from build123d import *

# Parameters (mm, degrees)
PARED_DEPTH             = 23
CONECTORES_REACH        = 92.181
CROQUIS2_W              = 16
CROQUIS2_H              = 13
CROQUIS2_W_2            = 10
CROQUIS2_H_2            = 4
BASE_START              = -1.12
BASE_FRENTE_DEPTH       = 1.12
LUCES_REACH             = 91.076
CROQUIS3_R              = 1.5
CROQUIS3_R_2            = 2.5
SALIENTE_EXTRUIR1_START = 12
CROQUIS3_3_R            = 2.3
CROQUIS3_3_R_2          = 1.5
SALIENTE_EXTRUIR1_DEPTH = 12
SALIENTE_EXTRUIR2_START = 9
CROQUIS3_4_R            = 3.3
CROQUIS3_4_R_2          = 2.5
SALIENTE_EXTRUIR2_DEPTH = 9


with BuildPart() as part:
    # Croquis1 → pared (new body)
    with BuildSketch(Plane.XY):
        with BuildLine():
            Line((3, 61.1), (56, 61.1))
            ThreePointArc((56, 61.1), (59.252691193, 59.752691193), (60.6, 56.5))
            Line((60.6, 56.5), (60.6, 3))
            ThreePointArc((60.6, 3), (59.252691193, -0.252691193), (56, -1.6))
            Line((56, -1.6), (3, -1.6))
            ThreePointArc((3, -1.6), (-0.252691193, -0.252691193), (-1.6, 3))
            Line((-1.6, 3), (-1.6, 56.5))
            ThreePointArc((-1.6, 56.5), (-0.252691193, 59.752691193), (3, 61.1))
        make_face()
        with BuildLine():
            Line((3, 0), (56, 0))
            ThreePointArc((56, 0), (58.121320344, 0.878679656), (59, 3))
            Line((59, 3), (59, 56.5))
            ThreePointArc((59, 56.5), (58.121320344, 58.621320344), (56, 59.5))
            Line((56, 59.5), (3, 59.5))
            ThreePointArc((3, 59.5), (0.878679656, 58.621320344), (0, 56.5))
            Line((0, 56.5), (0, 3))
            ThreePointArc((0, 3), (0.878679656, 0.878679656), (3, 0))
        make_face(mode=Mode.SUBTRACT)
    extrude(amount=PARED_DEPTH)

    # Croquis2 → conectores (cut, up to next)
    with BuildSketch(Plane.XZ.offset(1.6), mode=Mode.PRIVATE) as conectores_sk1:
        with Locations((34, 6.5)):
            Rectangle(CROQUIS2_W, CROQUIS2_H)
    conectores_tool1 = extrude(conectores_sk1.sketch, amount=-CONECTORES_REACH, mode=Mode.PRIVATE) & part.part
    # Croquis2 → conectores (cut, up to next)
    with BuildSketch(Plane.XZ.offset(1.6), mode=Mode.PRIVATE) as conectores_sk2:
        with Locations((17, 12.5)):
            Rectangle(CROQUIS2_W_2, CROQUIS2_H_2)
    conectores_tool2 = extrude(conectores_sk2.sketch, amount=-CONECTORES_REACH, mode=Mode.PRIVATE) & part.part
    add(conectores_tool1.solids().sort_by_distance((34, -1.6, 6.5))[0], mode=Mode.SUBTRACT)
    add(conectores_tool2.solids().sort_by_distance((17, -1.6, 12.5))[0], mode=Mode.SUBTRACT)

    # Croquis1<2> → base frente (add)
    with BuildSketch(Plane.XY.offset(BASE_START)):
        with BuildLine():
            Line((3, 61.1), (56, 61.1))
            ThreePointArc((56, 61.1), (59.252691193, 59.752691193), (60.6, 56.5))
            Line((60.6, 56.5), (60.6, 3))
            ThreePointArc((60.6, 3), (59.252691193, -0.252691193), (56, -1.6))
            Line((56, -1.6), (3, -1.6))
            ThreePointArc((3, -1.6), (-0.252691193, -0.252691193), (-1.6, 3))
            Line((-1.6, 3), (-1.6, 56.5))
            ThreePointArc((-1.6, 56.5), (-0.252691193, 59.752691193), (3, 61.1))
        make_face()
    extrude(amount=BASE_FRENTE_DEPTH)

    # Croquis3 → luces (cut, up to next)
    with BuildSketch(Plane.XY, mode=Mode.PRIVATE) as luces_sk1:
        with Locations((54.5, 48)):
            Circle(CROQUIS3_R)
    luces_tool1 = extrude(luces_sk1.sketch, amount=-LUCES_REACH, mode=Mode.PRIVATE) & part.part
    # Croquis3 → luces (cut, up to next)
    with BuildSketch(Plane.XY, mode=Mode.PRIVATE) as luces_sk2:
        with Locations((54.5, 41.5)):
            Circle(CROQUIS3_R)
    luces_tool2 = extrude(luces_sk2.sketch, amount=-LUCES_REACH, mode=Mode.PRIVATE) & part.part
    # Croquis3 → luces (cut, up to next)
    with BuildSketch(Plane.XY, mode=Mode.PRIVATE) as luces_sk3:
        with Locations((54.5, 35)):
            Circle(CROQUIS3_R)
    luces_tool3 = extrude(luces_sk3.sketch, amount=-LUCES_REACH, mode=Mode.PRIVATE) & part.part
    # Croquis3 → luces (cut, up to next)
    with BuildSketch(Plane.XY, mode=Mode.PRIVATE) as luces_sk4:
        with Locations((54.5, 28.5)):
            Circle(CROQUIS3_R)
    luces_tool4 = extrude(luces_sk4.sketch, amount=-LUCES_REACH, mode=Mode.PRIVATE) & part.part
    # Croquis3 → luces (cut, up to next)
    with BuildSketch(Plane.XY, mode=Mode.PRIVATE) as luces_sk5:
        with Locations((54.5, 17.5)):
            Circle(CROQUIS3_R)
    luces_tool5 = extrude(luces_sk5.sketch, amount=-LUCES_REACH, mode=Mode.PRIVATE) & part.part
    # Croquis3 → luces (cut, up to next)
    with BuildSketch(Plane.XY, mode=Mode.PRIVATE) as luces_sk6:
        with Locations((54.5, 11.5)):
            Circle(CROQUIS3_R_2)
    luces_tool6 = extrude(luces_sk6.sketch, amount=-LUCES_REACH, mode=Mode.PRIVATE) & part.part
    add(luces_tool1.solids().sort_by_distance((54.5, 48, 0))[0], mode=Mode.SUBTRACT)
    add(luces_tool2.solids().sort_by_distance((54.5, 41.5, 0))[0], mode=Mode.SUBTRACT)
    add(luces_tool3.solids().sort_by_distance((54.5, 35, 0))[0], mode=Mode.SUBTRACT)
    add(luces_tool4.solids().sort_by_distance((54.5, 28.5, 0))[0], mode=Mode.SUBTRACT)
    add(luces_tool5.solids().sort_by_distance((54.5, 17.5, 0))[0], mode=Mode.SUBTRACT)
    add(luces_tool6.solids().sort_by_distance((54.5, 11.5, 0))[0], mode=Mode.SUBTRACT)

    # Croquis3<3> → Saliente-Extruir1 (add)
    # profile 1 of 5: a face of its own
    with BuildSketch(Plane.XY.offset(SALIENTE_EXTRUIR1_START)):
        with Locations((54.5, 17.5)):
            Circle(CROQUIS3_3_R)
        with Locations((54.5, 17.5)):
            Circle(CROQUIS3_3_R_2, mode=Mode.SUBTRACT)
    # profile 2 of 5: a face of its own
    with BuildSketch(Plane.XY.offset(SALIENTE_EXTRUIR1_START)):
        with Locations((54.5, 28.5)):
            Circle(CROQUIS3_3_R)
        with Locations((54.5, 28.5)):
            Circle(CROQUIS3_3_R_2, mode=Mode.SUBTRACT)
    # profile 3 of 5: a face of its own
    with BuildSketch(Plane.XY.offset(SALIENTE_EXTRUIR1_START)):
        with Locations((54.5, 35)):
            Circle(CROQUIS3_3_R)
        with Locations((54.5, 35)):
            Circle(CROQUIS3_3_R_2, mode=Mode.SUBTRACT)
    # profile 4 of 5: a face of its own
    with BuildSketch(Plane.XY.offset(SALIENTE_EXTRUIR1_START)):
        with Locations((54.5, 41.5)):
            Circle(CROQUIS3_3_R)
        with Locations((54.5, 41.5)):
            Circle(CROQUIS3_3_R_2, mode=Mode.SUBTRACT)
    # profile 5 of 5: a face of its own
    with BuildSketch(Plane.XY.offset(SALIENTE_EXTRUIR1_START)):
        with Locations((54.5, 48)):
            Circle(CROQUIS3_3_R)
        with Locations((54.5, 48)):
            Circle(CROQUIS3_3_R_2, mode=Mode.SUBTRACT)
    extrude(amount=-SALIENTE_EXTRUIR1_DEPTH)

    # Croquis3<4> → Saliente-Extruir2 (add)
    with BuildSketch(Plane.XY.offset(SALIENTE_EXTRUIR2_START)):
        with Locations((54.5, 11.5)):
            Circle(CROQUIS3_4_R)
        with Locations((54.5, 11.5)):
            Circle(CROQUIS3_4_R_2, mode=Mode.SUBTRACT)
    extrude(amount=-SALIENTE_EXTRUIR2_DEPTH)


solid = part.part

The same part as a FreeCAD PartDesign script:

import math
import FreeCAD as App
import Part
import Sketcher

V = App.Vector


def add_polygon(sketch, points):
    """Adds a closed chain of lines whose ends are joined by coincident constraints."""
    first, n = sketch.GeometryCount, len(points)
    for a, b in zip(points, points[1:] + points[:1]):
        sketch.addGeometry(Part.LineSegment(App.Vector(*a, 0), App.Vector(*b, 0)), False)
    for i in range(n):
        sketch.addConstraint(Sketcher.Constraint("Coincident", first + i, 2, first + (i + 1) % n, 1))

doc = App.newDocument("Part")
body = doc.addObject("PartDesign::Body", "Body")

# Sketch on XY plane
sketch1 = body.newObject("Sketcher::SketchObject", "Sketch")
sketch1.AttachmentSupport = (doc.getObject("XY_Plane"), [""])
sketch1.MapMode = "FlatFace"
sketch1.addGeometry(Part.LineSegment(V(56, 61.1, 0), V(3, 61.1, 0)), False)
sketch1.addGeometry(Part.ArcOfCircle(Part.Circle(V(3, 56.5, 0), V(0, 0, 1), 4.6), math.radians(90), math.radians(180)), False)
sketch1.addGeometry(Part.LineSegment(V(-1.6, 56.5, 0), V(-1.6, 3, 0)), False)
sketch1.addGeometry(Part.ArcOfCircle(Part.Circle(V(3, 3, 0), V(0, 0, 1), 4.6), math.radians(-180), math.radians(-90)), False)
sketch1.addGeometry(Part.LineSegment(V(3, -1.6, 0), V(56, -1.6, 0)), False)
sketch1.addGeometry(Part.ArcOfCircle(Part.Circle(V(56, 3, 0), V(0, 0, 1), 4.6), math.radians(-90), math.radians(0)), False)
sketch1.addGeometry(Part.LineSegment(V(60.6, 3, 0), V(60.6, 56.5, 0)), False)
sketch1.addGeometry(Part.ArcOfCircle(Part.Circle(V(56, 56.5, 0), V(0, 0, 1), 4.6), math.radians(0), math.radians(90)), False)
sketch1.addGeometry(Part.ArcOfCircle(Part.Circle(V(3, 3, 0), V(0, 0, 1), 3), math.radians(180), math.radians(270)), False)
sketch1.addGeometry(Part.LineSegment(V(0, 3, 0), V(0, 56.5, 0)), False)
sketch1.addGeometry(Part.ArcOfCircle(Part.Circle(V(3, 56.5, 0), V(0, 0, 1), 3), math.radians(90), math.radians(180)), False)
sketch1.addGeometry(Part.LineSegment(V(3, 59.5, 0), V(56, 59.5, 0)), False)
sketch1.addGeometry(Part.ArcOfCircle(Part.Circle(V(56, 56.5, 0), V(0, 0, 1), 3), math.radians(0), math.radians(90)), False)
sketch1.addGeometry(Part.LineSegment(V(59, 56.5, 0), V(59, 3, 0)), False)
sketch1.addGeometry(Part.ArcOfCircle(Part.Circle(V(56, 3, 0), V(0, 0, 1), 3), math.radians(-90), math.radians(0)), False)
sketch1.addGeometry(Part.LineSegment(V(56, 0, 0), V(3, 0, 0)), False)
sketch1.addConstraint(Sketcher.Constraint("Tangent", 0, 2, 1, 1))
sketch1.addConstraint(Sketcher.Constraint("Tangent", 1, 2, 2, 1))
sketch1.addConstraint(Sketcher.Constraint("Tangent", 2, 2, 3, 1))
sketch1.addConstraint(Sketcher.Constraint("Tangent", 3, 2, 4, 1))
sketch1.addConstraint(Sketcher.Constraint("Tangent", 4, 2, 5, 1))
sketch1.addConstraint(Sketcher.Constraint("Tangent", 5, 2, 6, 1))
sketch1.addConstraint(Sketcher.Constraint("Tangent", 6, 2, 7, 1))
sketch1.addConstraint(Sketcher.Constraint("Tangent", 7, 2, 0, 1))
sketch1.addConstraint(Sketcher.Constraint("Tangent", 8, 1, 9, 1))
sketch1.addConstraint(Sketcher.Constraint("Tangent", 9, 2, 10, 2))
sketch1.addConstraint(Sketcher.Constraint("Tangent", 10, 1, 11, 1))
sketch1.addConstraint(Sketcher.Constraint("Tangent", 11, 2, 12, 2))
sketch1.addConstraint(Sketcher.Constraint("Tangent", 12, 1, 13, 1))
sketch1.addConstraint(Sketcher.Constraint("Tangent", 13, 2, 14, 2))
sketch1.addConstraint(Sketcher.Constraint("Tangent", 14, 1, 15, 1))
sketch1.addConstraint(Sketcher.Constraint("Tangent", 15, 2, 8, 2))
sketch1.addConstraint(Sketcher.Constraint("Horizontal", 0))
sketch1.addConstraint(Sketcher.Constraint("Vertical", 2))
sketch1.addConstraint(Sketcher.Constraint("Horizontal", 4))
sketch1.addConstraint(Sketcher.Constraint("Vertical", 6))
sketch1.addConstraint(Sketcher.Constraint("Vertical", 9))
sketch1.addConstraint(Sketcher.Constraint("Horizontal", 11))
sketch1.addConstraint(Sketcher.Constraint("Vertical", 13))
sketch1.addConstraint(Sketcher.Constraint("Horizontal", 15))
sketch1.addConstraint(Sketcher.Constraint("Coincident", 8, 3, 3, 3))
sketch1.addConstraint(Sketcher.Constraint("Coincident", 10, 3, 1, 3))
sketch1.addConstraint(Sketcher.Constraint("Coincident", 12, 3, 7, 3))
sketch1.addConstraint(Sketcher.Constraint("Equal", 1, 3))
sketch1.addConstraint(Sketcher.Constraint("Equal", 3, 5))
sketch1.addConstraint(Sketcher.Constraint("Equal", 5, 7))
sketch1.addConstraint(Sketcher.Constraint("Equal", 12, 14))
sketch1.addConstraint(Sketcher.Constraint("PointOnObject", 8, 1, -2))
sketch1.addConstraint(Sketcher.Constraint("PointOnObject", 14, 1, -1))
sketch1.addConstraint(Sketcher.Constraint("Radius", 8, 3.0))
sketch1.addConstraint(Sketcher.Constraint("Radius", 1, 4.6))
sketch1.addConstraint(Sketcher.Constraint("DistanceX", 0, 2, 0, 1, 53.0))
sketch1.addConstraint(Sketcher.Constraint("DistanceY", 2, 2, 2, 1, 53.5))
pad1 = body.newObject("PartDesign::Pad", "Pad")
pad1.Profile = sketch1
pad1.Length = 23

# Sketch on XZ plane
sketch2 = body.newObject("Sketcher::SketchObject", "Sketch001")
sketch2.AttachmentSupport = (doc.getObject("XZ_Plane"), [""])
sketch2.MapMode = "FlatFace"
sketch2.AttachmentOffset = App.Placement(V(0, 0, 1.6), App.Rotation())
add_polygon(sketch2, [(26, 13), (26, 0), (42, 0), (42, 13)])  # lines 0-3
sketch2.addConstraint(Sketcher.Constraint("Vertical", 0))
sketch2.addConstraint(Sketcher.Constraint("Horizontal", 1))
sketch2.addConstraint(Sketcher.Constraint("Vertical", 2))
sketch2.addConstraint(Sketcher.Constraint("Horizontal", 3))
sketch2.addConstraint(Sketcher.Constraint("PointOnObject", 0, 2, -1))
sketch2.addConstraint(Sketcher.Constraint("DistanceX", 1, 1, 1, 2, 16.0))
sketch2.addConstraint(Sketcher.Constraint("DistanceY", 0, 2, 0, 1, 13.0))
sketch2.addConstraint(Sketcher.Constraint("DistanceX", -1, 1, 0, 2, 26.0))
pocket1 = body.newObject("PartDesign::Pocket", "Pocket")
pocket1.Profile = sketch2
pocket1.Type = "UpToFirst"

# Sketch on XZ plane
sketch3 = body.newObject("Sketcher::SketchObject", "Sketch002")
sketch3.AttachmentSupport = (doc.getObject("XZ_Plane"), [""])
sketch3.MapMode = "FlatFace"
sketch3.AttachmentOffset = App.Placement(V(0, 0, 1.6), App.Rotation())
add_polygon(sketch3, [(12, 14.5), (12, 10.5), (22, 10.5), (22, 14.5)])  # lines 0-3
sketch3.addConstraint(Sketcher.Constraint("Vertical", 0))
sketch3.addConstraint(Sketcher.Constraint("Horizontal", 1))
sketch3.addConstraint(Sketcher.Constraint("Vertical", 2))
sketch3.addConstraint(Sketcher.Constraint("Horizontal", 3))
sketch3.addConstraint(Sketcher.Constraint("DistanceX", 1, 1, 1, 2, 10.0))
sketch3.addConstraint(Sketcher.Constraint("DistanceY", 0, 2, 0, 1, 4.0))
sketch3.addConstraint(Sketcher.Constraint("DistanceX", -1, 1, 0, 2, 12.0))
sketch3.addConstraint(Sketcher.Constraint("DistanceY", -1, 1, 0, 2, 10.5))
pocket2 = body.newObject("PartDesign::Pocket", "Pocket001")
pocket2.Profile = sketch3
pocket2.Type = "UpToFirst"

# Sketch on XY plane
sketch4 = body.newObject("Sketcher::SketchObject", "Sketch003")
sketch4.AttachmentSupport = (doc.getObject("XY_Plane"), [""])
sketch4.MapMode = "FlatFace"
sketch4.AttachmentOffset = App.Placement(V(0, 0, -1.12), App.Rotation())
sketch4.addGeometry(Part.LineSegment(V(56, 61.1, 0), V(3, 61.1, 0)), False)
sketch4.addGeometry(Part.ArcOfCircle(Part.Circle(V(3, 56.5, 0), V(0, 0, 1), 4.6), math.radians(90), math.radians(180)), False)
sketch4.addGeometry(Part.LineSegment(V(-1.6, 56.5, 0), V(-1.6, 3, 0)), False)
sketch4.addGeometry(Part.ArcOfCircle(Part.Circle(V(3, 3, 0), V(0, 0, 1), 4.6), math.radians(-180), math.radians(-90)), False)
sketch4.addGeometry(Part.LineSegment(V(3, -1.6, 0), V(56, -1.6, 0)), False)
sketch4.addGeometry(Part.ArcOfCircle(Part.Circle(V(56, 3, 0), V(0, 0, 1), 4.6), math.radians(-90), math.radians(0)), False)
sketch4.addGeometry(Part.LineSegment(V(60.6, 3, 0), V(60.6, 56.5, 0)), False)
sketch4.addGeometry(Part.ArcOfCircle(Part.Circle(V(56, 56.5, 0), V(0, 0, 1), 4.6), math.radians(0), math.radians(90)), False)
sketch4.addConstraint(Sketcher.Constraint("Tangent", 0, 2, 1, 1))
sketch4.addConstraint(Sketcher.Constraint("Tangent", 1, 2, 2, 1))
sketch4.addConstraint(Sketcher.Constraint("Tangent", 2, 2, 3, 1))
sketch4.addConstraint(Sketcher.Constraint("Tangent", 3, 2, 4, 1))
sketch4.addConstraint(Sketcher.Constraint("Tangent", 4, 2, 5, 1))
sketch4.addConstraint(Sketcher.Constraint("Tangent", 5, 2, 6, 1))
sketch4.addConstraint(Sketcher.Constraint("Tangent", 6, 2, 7, 1))
sketch4.addConstraint(Sketcher.Constraint("Tangent", 7, 2, 0, 1))
sketch4.addConstraint(Sketcher.Constraint("Horizontal", 0))
sketch4.addConstraint(Sketcher.Constraint("Vertical", 2))
sketch4.addConstraint(Sketcher.Constraint("Horizontal", 4))
sketch4.addConstraint(Sketcher.Constraint("Vertical", 6))
sketch4.addConstraint(Sketcher.Constraint("Equal", 1, 3))
sketch4.addConstraint(Sketcher.Constraint("Equal", 3, 5))
sketch4.addConstraint(Sketcher.Constraint("Equal", 5, 7))
sketch4.addConstraint(Sketcher.Constraint("Radius", 1, 4.6))
sketch4.addConstraint(Sketcher.Constraint("DistanceX", 0, 2, 0, 1, 53.0))
sketch4.addConstraint(Sketcher.Constraint("DistanceY", 2, 2, 2, 1, 53.5))
sketch4.addConstraint(Sketcher.Constraint("DistanceX", -1, 1, 1, 3, 3.0))
sketch4.addConstraint(Sketcher.Constraint("DistanceY", -1, 1, 3, 3, 3.0))
pad2 = body.newObject("PartDesign::Pad", "Pad001")
pad2.Profile = sketch4
pad2.Length = 1.12

# Sketch on XY plane
sketch5 = body.newObject("Sketcher::SketchObject", "Sketch004")
sketch5.AttachmentSupport = (doc.getObject("XY_Plane"), [""])
sketch5.MapMode = "FlatFace"
sketch5.addGeometry(Part.Circle(V(54.5, 48, 0), V(0, 0, 1), 1.5), False)
sketch5.addConstraint(Sketcher.Constraint("Diameter", 0, 3.0))
sketch5.addConstraint(Sketcher.Constraint("DistanceY", -1, 1, 0, 3, 48.0))
sketch5.addConstraint(Sketcher.Constraint("DistanceX", -1, 1, 0, 3, 54.5))
pocket3 = body.newObject("PartDesign::Pocket", "Pocket002")
pocket3.Profile = sketch5
pocket3.Type = "UpToFirst"

# Sketch on XY plane
sketch6 = body.newObject("Sketcher::SketchObject", "Sketch005")
sketch6.AttachmentSupport = (doc.getObject("XY_Plane"), [""])
sketch6.MapMode = "FlatFace"
sketch6.addGeometry(Part.Circle(V(54.5, 41.5, 0), V(0, 0, 1), 1.5), False)
sketch6.addConstraint(Sketcher.Constraint("Diameter", 0, 3.0))
sketch6.addConstraint(Sketcher.Constraint("DistanceX", -1, 1, 0, 3, 54.5))
sketch6.addConstraint(Sketcher.Constraint("DistanceY", -1, 1, 0, 3, 41.5))
pocket4 = body.newObject("PartDesign::Pocket", "Pocket003")
pocket4.Profile = sketch6
pocket4.Type = "UpToFirst"

# Sketch on XY plane
sketch7 = body.newObject("Sketcher::SketchObject", "Sketch006")
sketch7.AttachmentSupport = (doc.getObject("XY_Plane"), [""])
sketch7.MapMode = "FlatFace"
sketch7.addGeometry(Part.Circle(V(54.5, 35, 0), V(0, 0, 1), 1.5), False)
sketch7.addConstraint(Sketcher.Constraint("Diameter", 0, 3.0))
sketch7.addConstraint(Sketcher.Constraint("DistanceY", -1, 1, 0, 3, 35.0))
sketch7.addConstraint(Sketcher.Constraint("DistanceX", -1, 1, 0, 3, 54.5))
pocket5 = body.newObject("PartDesign::Pocket", "Pocket004")
pocket5.Profile = sketch7
pocket5.Type = "UpToFirst"

# Sketch on XY plane
sketch8 = body.newObject("Sketcher::SketchObject", "Sketch007")
sketch8.AttachmentSupport = (doc.getObject("XY_Plane"), [""])
sketch8.MapMode = "FlatFace"
sketch8.addGeometry(Part.Circle(V(54.5, 28.5, 0), V(0, 0, 1), 1.5), False)
sketch8.addConstraint(Sketcher.Constraint("Diameter", 0, 3.0))
sketch8.addConstraint(Sketcher.Constraint("DistanceX", -1, 1, 0, 3, 54.5))
sketch8.addConstraint(Sketcher.Constraint("DistanceY", -1, 1, 0, 3, 28.5))
pocket6 = body.newObject("PartDesign::Pocket", "Pocket005")
pocket6.Profile = sketch8
pocket6.Type = "UpToFirst"

# Sketch on XY plane
sketch9 = body.newObject("Sketcher::SketchObject", "Sketch008")
sketch9.AttachmentSupport = (doc.getObject("XY_Plane"), [""])
sketch9.MapMode = "FlatFace"
sketch9.addGeometry(Part.Circle(V(54.5, 17.5, 0), V(0, 0, 1), 1.5), False)
sketch9.addConstraint(Sketcher.Constraint("Diameter", 0, 3.0))
sketch9.addConstraint(Sketcher.Constraint("DistanceX", -1, 1, 0, 3, 54.5))
sketch9.addConstraint(Sketcher.Constraint("DistanceY", -1, 1, 0, 3, 17.5))
pocket7 = body.newObject("PartDesign::Pocket", "Pocket006")
pocket7.Profile = sketch9
pocket7.Type = "UpToFirst"

# Sketch on XY plane
sketch10 = body.newObject("Sketcher::SketchObject", "Sketch009")
sketch10.AttachmentSupport = (doc.getObject("XY_Plane"), [""])
sketch10.MapMode = "FlatFace"
sketch10.addGeometry(Part.Circle(V(54.5, 11.5, 0), V(0, 0, 1), 2.5), False)
sketch10.addConstraint(Sketcher.Constraint("Diameter", 0, 5.0))
sketch10.addConstraint(Sketcher.Constraint("DistanceX", -1, 1, 0, 3, 54.5))
sketch10.addConstraint(Sketcher.Constraint("DistanceY", -1, 1, 0, 3, 11.5))
pocket8 = body.newObject("PartDesign::Pocket", "Pocket007")
pocket8.Profile = sketch10
pocket8.Type = "UpToFirst"

# Sketch on XY plane
sketch11 = body.newObject("Sketcher::SketchObject", "Sketch010")
sketch11.AttachmentSupport = (doc.getObject("XY_Plane"), [""])
sketch11.MapMode = "FlatFace"
sketch11.AttachmentOffset = App.Placement(V(0, 0, 12), App.Rotation())
sketch11.addGeometry(Part.Circle(V(54.5, 17.5, 0), V(0, 0, 1), 2.3), False)
sketch11.addGeometry(Part.Circle(V(54.5, 17.5, 0), V(0, 0, 1), 1.5), False)
sketch11.addGeometry(Part.Circle(V(54.5, 28.5, 0), V(0, 0, 1), 2.3), False)
sketch11.addGeometry(Part.Circle(V(54.5, 28.5, 0), V(0, 0, 1), 1.5), False)
sketch11.addGeometry(Part.Circle(V(54.5, 35, 0), V(0, 0, 1), 2.3), False)
sketch11.addGeometry(Part.Circle(V(54.5, 35, 0), V(0, 0, 1), 1.5), False)
sketch11.addGeometry(Part.Circle(V(54.5, 41.5, 0), V(0, 0, 1), 2.3), False)
sketch11.addGeometry(Part.Circle(V(54.5, 41.5, 0), V(0, 0, 1), 1.5), False)
sketch11.addGeometry(Part.Circle(V(54.5, 48, 0), V(0, 0, 1), 2.3), False)
sketch11.addGeometry(Part.Circle(V(54.5, 48, 0), V(0, 0, 1), 1.5), False)
sketch11.addConstraint(Sketcher.Constraint("Coincident", 1, 3, 0, 3))
sketch11.addConstraint(Sketcher.Constraint("Coincident", 3, 3, 2, 3))
sketch11.addConstraint(Sketcher.Constraint("Coincident", 5, 3, 4, 3))
sketch11.addConstraint(Sketcher.Constraint("Coincident", 7, 3, 6, 3))
sketch11.addConstraint(Sketcher.Constraint("Coincident", 9, 3, 8, 3))
sketch11.addConstraint(Sketcher.Constraint("Equal", 0, 2))
sketch11.addConstraint(Sketcher.Constraint("Equal", 1, 3))
sketch11.addConstraint(Sketcher.Constraint("Equal", 2, 4))
sketch11.addConstraint(Sketcher.Constraint("Equal", 3, 5))
sketch11.addConstraint(Sketcher.Constraint("Equal", 4, 6))
sketch11.addConstraint(Sketcher.Constraint("Equal", 5, 7))
sketch11.addConstraint(Sketcher.Constraint("Equal", 6, 8))
sketch11.addConstraint(Sketcher.Constraint("Equal", 7, 9))
sketch11.addConstraint(Sketcher.Constraint("Vertical", 1, 3, 2, 3))
sketch11.addConstraint(Sketcher.Constraint("Vertical", 3, 3, 4, 3))
sketch11.addConstraint(Sketcher.Constraint("Vertical", 5, 3, 6, 3))
sketch11.addConstraint(Sketcher.Constraint("Vertical", 7, 3, 8, 3))
sketch11.addConstraint(Sketcher.Constraint("Diameter", 1, 3.0))
sketch11.addConstraint(Sketcher.Constraint("Diameter", 0, 4.6))
sketch11.addConstraint(Sketcher.Constraint("DistanceY", -1, 1, 4, 3, 35.0))
sketch11.addConstraint(Sketcher.Constraint("DistanceY", -1, 1, 8, 3, 48.0))
sketch11.addConstraint(Sketcher.Constraint("DistanceY", 0, 3, 2, 3, 11.0))
sketch11.addConstraint(Sketcher.Constraint("DistanceY", 2, 3, 6, 3, 13.0))
sketch11.addConstraint(Sketcher.Constraint("DistanceX", -1, 1, 0, 3, 54.5))
sketch11.addConstraint(Sketcher.Constraint("DistanceY", -1, 1, 0, 3, 17.5))
pad3 = body.newObject("PartDesign::Pad", "Pad002")
pad3.Profile = sketch11
pad3.Length = 12
pad3.Reversed = True

# Sketch on XY plane
sketch12 = body.newObject("Sketcher::SketchObject", "Sketch011")
sketch12.AttachmentSupport = (doc.getObject("XY_Plane"), [""])
sketch12.MapMode = "FlatFace"
sketch12.AttachmentOffset = App.Placement(V(0, 0, 9), App.Rotation())
sketch12.addGeometry(Part.Circle(V(54.5, 11.5, 0), V(0, 0, 1), 3.3), False)
sketch12.addGeometry(Part.Circle(V(54.5, 11.5, 0), V(0, 0, 1), 2.5), False)
sketch12.addConstraint(Sketcher.Constraint("Coincident", 1, 3, 0, 3))
sketch12.addConstraint(Sketcher.Constraint("Diameter", 1, 5.0))
sketch12.addConstraint(Sketcher.Constraint("Diameter", 0, 6.6))
sketch12.addConstraint(Sketcher.Constraint("DistanceX", -1, 1, 0, 3, 54.5))
sketch12.addConstraint(Sketcher.Constraint("DistanceY", -1, 1, 0, 3, 11.5))
pad4 = body.newObject("PartDesign::Pad", "Pad003")
pad4.Profile = sketch12
pad4.Length = 9
pad4.Reversed = True

doc.recompute()
